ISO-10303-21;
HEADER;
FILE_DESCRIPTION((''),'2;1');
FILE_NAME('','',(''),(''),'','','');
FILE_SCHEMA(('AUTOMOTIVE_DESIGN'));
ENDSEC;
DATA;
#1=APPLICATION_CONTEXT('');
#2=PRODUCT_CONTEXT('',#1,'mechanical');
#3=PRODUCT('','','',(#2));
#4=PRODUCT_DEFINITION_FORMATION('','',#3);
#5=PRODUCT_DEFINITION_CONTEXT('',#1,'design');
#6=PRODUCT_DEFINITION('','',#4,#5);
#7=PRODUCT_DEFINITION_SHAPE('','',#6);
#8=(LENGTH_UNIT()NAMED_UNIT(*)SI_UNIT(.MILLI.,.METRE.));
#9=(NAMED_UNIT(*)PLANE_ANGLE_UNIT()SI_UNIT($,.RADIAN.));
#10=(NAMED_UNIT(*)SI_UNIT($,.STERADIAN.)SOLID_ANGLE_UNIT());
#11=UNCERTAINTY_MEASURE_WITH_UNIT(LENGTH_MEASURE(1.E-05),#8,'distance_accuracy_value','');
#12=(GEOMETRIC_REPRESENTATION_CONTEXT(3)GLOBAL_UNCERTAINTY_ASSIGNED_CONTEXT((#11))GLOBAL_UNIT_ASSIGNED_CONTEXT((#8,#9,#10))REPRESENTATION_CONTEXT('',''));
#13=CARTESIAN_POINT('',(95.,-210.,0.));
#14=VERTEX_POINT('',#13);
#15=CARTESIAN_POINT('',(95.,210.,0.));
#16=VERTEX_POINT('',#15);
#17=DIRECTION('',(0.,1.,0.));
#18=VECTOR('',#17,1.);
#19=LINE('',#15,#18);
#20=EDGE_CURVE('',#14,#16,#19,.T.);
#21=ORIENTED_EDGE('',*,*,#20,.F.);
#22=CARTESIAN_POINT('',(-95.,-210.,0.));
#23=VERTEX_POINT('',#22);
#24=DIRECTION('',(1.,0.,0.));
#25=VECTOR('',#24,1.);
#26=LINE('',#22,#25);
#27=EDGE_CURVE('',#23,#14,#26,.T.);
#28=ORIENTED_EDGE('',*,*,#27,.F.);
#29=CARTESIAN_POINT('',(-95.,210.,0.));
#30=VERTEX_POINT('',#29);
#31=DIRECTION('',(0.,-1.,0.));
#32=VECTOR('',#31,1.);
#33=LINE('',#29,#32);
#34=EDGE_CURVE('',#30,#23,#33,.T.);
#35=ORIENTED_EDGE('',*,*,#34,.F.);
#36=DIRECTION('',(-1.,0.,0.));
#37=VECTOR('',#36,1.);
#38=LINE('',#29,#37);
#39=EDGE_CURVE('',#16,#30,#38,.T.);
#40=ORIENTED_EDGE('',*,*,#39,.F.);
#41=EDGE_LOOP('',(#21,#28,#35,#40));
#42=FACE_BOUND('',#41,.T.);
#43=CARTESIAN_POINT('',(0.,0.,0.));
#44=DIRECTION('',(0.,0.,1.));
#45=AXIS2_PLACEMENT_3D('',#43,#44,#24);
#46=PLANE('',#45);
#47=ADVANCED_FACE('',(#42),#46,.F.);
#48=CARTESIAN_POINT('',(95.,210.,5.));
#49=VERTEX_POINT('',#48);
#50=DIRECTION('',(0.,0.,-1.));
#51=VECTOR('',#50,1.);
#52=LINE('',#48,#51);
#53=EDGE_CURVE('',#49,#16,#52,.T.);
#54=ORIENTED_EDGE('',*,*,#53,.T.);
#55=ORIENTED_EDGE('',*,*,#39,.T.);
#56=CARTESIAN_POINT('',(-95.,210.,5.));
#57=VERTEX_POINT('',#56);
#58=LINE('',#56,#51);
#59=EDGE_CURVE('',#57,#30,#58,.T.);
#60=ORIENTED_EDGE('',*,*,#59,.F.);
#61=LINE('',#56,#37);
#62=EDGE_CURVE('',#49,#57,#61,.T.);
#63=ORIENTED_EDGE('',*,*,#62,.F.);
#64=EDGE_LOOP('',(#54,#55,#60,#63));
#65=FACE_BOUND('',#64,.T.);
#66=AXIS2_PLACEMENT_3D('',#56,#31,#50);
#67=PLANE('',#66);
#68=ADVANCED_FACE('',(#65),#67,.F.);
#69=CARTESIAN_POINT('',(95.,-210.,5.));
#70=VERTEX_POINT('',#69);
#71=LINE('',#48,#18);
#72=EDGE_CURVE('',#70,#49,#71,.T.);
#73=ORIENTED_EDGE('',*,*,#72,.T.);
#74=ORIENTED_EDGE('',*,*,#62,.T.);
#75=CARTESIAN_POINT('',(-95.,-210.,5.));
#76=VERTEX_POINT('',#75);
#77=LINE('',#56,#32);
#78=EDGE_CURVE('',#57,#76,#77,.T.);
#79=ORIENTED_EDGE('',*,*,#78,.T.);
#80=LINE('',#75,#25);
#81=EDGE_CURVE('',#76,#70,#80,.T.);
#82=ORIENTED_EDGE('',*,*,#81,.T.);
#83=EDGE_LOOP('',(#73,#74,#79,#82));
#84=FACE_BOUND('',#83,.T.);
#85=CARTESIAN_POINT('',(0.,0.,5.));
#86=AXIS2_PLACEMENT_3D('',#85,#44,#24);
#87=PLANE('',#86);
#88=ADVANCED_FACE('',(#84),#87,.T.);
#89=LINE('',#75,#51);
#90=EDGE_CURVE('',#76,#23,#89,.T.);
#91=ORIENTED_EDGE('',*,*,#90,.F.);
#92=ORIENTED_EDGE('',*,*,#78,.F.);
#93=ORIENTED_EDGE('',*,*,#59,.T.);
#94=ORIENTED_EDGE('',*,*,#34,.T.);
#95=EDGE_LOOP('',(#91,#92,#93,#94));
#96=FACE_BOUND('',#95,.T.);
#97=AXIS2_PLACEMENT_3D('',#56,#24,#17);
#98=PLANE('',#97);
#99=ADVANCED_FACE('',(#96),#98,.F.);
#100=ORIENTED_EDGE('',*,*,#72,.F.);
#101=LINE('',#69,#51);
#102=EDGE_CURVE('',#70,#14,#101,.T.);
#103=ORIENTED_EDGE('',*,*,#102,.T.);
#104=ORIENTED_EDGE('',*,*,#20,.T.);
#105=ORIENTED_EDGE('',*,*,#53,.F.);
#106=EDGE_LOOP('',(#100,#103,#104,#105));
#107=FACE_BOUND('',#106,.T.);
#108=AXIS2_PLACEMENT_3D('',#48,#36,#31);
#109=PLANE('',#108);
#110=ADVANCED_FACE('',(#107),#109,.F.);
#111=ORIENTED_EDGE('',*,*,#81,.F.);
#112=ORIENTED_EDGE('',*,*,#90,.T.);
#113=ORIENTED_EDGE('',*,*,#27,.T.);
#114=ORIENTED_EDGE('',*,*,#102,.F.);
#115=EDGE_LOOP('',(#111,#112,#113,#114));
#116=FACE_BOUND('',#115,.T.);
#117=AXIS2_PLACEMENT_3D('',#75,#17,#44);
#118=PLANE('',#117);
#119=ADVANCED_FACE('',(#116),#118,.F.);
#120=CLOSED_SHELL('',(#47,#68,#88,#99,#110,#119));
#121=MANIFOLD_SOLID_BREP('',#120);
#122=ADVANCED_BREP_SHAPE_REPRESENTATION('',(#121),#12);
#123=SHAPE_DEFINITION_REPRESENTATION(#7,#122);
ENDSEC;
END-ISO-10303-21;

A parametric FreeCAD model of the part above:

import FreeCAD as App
import Part
import Sketcher

V = App.Vector

doc = App.newDocument("Part")
params = doc.addObject("Spreadsheet::Sheet", "Params")
for row, (alias, value) in enumerate([
    ("sketch1_width", "190 mm"),
    ("sketch1_height", "420 mm"),
    ("pad1_length", "5 mm"),
], start=1):
    params.set(f"A{row}", alias)
    params.set(f"B{row}", "=" + value)
    params.setAlias(f"B{row}", alias)

body = doc.addObject("PartDesign::Body", "Body")

sketch1 = body.newObject("Sketcher::SketchObject", "Sketch")
sketch1.AttachmentSupport = (doc.getObject("XY_Plane"), [""])
sketch1.MapMode = "FlatFace"
sketch1.addGeometry([
    Part.LineSegment(V(-95, 210, 0), V(-95, -210, 0)),
    Part.LineSegment(V(-95, -210, 0), V(95, -210, 0)),
    Part.LineSegment(V(95, -210, 0), V(95, 210, 0)),
    Part.LineSegment(V(95, 210, 0), V(-95, 210, 0)),
], False)
sketch1.addConstraint([
    Sketcher.Constraint("Coincident", 0, 2, 1, 1),
    Sketcher.Constraint("Coincident", 1, 2, 2, 1),
    Sketcher.Constraint("Coincident", 2, 2, 3, 1),
    Sketcher.Constraint("Coincident", 3, 2, 0, 1),
    Sketcher.Constraint("Vertical", 0),
    Sketcher.Constraint("Horizontal", 1),
    Sketcher.Constraint("Vertical", 2),
    Sketcher.Constraint("Horizontal", 3),
    Sketcher.Constraint("Symmetric", 0, 2, 2, 2, -1, 1),
    Sketcher.Constraint("DistanceX", 1, 1, 1, 2, 190.0),
    Sketcher.Constraint("DistanceY", 0, 2, 0, 1, 420.0),
])
sketch1.setExpression("Constraints[9]", "Params.sketch1_width")
sketch1.setExpression("Constraints[10]", "Params.sketch1_height")
pad1 = body.newObject("PartDesign::Pad", "Pad")
pad1.Profile = sketch1
pad1.setExpression("Length", "Params.pad1_length")

doc.recompute()
